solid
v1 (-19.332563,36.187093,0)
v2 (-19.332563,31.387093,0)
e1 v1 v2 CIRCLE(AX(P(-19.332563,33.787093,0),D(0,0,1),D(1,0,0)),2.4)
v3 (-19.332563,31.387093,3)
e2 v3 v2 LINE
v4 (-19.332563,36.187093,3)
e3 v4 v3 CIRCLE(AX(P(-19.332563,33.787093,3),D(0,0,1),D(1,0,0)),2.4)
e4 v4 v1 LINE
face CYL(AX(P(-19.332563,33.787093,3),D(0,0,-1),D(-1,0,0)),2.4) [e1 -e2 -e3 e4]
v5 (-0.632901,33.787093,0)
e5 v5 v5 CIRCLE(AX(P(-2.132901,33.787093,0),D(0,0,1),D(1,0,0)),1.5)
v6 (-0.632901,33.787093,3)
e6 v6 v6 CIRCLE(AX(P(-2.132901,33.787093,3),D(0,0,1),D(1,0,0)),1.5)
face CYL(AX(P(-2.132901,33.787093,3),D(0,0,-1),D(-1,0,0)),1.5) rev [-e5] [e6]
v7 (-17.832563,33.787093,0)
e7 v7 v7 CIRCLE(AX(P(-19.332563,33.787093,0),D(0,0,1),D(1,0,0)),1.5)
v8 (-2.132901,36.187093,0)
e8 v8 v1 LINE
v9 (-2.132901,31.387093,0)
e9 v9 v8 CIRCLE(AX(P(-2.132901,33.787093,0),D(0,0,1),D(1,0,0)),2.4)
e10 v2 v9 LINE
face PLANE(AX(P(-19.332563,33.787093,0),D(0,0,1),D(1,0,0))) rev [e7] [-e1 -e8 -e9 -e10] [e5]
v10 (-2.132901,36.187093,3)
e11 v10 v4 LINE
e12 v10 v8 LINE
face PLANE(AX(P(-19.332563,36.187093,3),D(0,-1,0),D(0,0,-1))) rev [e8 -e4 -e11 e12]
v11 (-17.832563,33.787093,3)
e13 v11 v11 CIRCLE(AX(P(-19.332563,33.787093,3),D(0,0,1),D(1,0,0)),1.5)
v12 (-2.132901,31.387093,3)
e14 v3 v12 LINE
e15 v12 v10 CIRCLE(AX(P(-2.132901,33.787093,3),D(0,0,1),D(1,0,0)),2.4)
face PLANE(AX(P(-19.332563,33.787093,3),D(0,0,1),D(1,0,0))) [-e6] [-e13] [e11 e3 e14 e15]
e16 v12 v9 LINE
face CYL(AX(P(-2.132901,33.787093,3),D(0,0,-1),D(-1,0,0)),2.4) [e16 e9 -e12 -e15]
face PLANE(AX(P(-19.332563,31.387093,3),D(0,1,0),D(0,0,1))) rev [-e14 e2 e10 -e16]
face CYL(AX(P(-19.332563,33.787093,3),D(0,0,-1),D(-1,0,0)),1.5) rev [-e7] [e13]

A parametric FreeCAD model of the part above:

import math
import FreeCAD as App
import Part
import Sketcher

V = App.Vector
Q = App.Units.Quantity

doc = App.newDocument("Part")
body = doc.addObject("PartDesign::Body", "Body")

# Sketch on XY plane
sketch1 = body.newObject("Sketcher::SketchObject", "Sketch")
sketch1.AttachmentSupport = (doc.getObject("XY_Plane"), [""])
sketch1.MapMode = "FlatFace"
sketch1.addGeometry([
    Part.LineSegment(V(-2.132901, 36.187093, 0), V(-19.332563, 36.187093, 0)),  # 0
    Part.ArcOfCircle(Part.Circle(V(-19.332563, 33.787093, 0), V(0, 0, 1), 2.4), math.radians(90), math.radians(270)),  # 1
    Part.LineSegment(V(-19.332563, 31.387093, 0), V(-2.132901, 31.387093, 0)),  # 2
    Part.ArcOfCircle(Part.Circle(V(-2.132901, 33.787093, 0), V(0, 0, 1), 2.4), math.radians(-90), math.radians(90)),  # 3
    Part.Circle(V(-2.132901, 33.787093, 0), V(0, 0, 1), 1.5),  # 4
    Part.Circle(V(-19.332563, 33.787093, 0), V(0, 0, 1), 1.5),  # 5
], False)
sketch1.addConstraint([
    Sketcher.Constraint("Tangent", 0, 2, 1, 1),
    Sketcher.Constraint("Tangent", 1, 2, 2, 1),
    Sketcher.Constraint("Tangent", 2, 2, 3, 1),
    Sketcher.Constraint("Tangent", 3, 2, 0, 1),
    Sketcher.Constraint("Horizontal", 0),
    Sketcher.Constraint("Horizontal", 2),
    Sketcher.Constraint("Coincident", 4, 3, 3, 3),
    Sketcher.Constraint("Coincident", 5, 3, 1, 3),
    Sketcher.Constraint("Equal", 4, 5),
    Sketcher.Constraint("Diameter", 4, Q("3 mm")),
    Sketcher.Constraint("Radius", 1, Q("2.4 mm")),
    Sketcher.Constraint("DistanceX", 0, 2, 0, 1, Q("17.199661 mm")),
    Sketcher.Constraint("DistanceX", 3, 3, -1, 1, Q("2.132901 mm")),
    Sketcher.Constraint("DistanceY", -1, 1, 1, 3, Q("33.787093 mm")),
])
pad1 = body.newObject("PartDesign::Pad", "Pad")
pad1.Profile = sketch1
pad1.Length = 3

doc.recompute()
